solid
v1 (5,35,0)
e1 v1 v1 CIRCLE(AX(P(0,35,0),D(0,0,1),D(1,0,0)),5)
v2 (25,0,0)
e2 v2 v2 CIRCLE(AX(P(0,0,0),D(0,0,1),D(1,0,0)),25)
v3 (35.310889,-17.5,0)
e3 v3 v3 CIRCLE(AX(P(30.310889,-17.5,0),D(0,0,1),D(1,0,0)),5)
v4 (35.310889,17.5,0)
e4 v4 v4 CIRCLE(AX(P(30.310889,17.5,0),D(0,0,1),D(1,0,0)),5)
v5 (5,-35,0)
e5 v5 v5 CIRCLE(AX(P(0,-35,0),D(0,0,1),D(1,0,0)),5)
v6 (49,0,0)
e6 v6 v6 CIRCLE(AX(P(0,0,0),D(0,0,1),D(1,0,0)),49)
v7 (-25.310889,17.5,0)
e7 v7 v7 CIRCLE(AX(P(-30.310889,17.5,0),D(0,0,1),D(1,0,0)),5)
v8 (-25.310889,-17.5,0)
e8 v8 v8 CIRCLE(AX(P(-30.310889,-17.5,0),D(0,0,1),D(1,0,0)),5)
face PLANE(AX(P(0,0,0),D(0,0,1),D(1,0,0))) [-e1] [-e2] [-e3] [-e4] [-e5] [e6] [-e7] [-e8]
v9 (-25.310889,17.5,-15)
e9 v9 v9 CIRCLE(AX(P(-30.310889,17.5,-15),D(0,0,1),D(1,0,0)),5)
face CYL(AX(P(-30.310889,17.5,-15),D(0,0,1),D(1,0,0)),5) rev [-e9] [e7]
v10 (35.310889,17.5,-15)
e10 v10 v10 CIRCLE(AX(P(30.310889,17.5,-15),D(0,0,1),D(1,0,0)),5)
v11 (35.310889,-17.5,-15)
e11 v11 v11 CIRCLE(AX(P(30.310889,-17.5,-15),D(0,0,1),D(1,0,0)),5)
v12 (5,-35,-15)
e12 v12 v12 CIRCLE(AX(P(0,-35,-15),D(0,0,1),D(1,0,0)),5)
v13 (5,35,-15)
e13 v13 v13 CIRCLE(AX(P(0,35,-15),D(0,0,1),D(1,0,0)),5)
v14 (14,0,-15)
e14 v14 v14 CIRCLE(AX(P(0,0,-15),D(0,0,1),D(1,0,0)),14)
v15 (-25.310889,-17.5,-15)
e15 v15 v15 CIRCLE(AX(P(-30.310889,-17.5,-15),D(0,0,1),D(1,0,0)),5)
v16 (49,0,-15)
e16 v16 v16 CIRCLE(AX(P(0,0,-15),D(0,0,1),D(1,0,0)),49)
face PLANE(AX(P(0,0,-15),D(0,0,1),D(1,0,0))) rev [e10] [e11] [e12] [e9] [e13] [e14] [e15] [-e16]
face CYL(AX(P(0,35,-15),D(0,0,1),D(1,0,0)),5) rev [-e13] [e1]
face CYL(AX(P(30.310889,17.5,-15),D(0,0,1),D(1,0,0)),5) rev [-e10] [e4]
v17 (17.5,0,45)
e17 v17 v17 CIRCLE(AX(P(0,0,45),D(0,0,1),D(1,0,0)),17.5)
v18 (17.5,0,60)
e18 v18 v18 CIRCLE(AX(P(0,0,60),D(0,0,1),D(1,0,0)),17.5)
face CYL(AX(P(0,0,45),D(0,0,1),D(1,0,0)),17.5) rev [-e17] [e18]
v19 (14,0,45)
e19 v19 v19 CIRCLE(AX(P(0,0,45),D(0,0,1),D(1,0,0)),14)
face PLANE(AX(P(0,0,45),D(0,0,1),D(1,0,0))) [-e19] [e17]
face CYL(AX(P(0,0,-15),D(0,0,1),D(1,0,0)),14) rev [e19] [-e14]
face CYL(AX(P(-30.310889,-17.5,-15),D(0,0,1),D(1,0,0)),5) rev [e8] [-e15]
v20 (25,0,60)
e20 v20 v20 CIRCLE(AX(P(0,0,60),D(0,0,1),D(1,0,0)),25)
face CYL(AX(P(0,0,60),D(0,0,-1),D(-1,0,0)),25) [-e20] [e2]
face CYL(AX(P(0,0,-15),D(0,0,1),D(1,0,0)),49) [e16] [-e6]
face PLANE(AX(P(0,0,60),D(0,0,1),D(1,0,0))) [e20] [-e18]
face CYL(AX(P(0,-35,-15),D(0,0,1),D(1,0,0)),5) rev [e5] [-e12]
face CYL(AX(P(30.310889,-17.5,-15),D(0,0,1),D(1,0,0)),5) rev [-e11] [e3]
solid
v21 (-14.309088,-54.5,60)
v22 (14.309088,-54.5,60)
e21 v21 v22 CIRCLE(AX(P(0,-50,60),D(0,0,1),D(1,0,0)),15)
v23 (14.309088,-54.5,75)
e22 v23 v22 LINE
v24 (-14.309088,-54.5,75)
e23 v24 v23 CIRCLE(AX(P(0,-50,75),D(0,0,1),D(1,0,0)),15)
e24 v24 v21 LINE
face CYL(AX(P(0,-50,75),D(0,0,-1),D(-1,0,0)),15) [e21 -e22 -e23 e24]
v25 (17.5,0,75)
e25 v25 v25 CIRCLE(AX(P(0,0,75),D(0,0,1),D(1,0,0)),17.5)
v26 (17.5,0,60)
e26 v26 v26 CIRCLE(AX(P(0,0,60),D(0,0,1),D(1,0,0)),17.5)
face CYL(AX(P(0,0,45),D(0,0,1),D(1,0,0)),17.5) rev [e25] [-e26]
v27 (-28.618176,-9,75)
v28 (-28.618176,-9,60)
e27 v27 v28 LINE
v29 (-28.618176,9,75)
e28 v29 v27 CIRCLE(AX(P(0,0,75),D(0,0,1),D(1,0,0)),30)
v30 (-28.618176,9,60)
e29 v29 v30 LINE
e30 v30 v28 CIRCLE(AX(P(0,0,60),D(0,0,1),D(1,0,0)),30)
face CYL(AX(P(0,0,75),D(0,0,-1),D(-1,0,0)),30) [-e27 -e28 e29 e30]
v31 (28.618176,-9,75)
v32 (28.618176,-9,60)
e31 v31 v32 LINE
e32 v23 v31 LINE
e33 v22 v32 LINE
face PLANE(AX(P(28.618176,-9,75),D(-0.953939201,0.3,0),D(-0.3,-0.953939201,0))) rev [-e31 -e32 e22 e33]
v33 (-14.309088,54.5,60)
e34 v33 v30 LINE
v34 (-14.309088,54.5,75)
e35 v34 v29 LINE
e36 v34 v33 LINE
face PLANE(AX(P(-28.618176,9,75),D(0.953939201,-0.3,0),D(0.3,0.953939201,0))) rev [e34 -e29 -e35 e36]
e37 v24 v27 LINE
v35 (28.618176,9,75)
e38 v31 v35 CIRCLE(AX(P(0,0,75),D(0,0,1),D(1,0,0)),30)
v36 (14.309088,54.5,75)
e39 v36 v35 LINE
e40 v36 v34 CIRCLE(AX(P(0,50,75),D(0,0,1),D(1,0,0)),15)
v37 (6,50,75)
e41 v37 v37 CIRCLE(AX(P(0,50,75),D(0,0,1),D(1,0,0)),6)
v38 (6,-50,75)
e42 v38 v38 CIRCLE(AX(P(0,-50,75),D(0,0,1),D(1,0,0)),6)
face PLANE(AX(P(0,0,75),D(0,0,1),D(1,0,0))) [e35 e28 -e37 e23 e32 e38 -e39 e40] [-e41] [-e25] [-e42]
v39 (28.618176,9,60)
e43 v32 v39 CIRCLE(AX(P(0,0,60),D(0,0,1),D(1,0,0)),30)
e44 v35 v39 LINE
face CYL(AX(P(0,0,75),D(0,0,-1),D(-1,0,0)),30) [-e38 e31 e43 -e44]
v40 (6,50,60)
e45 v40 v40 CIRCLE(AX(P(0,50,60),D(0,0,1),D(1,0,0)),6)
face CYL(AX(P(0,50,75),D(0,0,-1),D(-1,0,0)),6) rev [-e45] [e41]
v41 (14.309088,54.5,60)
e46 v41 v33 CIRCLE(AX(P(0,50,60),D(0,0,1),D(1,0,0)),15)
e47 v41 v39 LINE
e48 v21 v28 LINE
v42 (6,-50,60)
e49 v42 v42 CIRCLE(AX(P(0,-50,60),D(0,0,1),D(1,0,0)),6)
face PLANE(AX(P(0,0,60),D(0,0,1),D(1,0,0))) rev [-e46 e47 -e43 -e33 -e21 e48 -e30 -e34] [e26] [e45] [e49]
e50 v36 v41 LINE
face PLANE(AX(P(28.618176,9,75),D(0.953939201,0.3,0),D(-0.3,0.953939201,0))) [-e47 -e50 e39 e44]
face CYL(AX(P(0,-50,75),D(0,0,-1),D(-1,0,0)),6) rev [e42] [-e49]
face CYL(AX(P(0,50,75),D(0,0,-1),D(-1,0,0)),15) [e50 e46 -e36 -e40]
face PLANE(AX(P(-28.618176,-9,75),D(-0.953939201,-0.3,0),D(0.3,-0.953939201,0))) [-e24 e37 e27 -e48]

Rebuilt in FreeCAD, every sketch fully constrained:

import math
import FreeCAD as App
import Part
import Sketcher
Q = App.Units.Quantity

doc = App.newDocument("Part")
body = doc.addObject("PartDesign::Body", "Body")

# Sketch on XY plane
sketch1 = body.newObject("Sketcher::SketchObject", "Sketch")
sketch1.AttachmentSupport = (doc.getObject("XY_Plane"), [""])
sketch1.MapMode = "FlatFace"
sketch1.addGeometry(Part.Circle(App.Vector(0, 0, 0), App.Vector(0, 0, 1), 49), False)
sketch1.addGeometry(Part.Circle(App.Vector(-30, -18, 0), App.Vector(0, 0, 1), 5), False)
sketch1.addGeometry(Part.Circle(App.Vector(0, -35, 0), App.Vector(0, 0, 1), 5), False)
sketch1.addGeometry(Part.Circle(App.Vector(30, -18, 0), App.Vector(0, 0, 1), 5), False)
sketch1.addGeometry(Part.Circle(App.Vector(-30, 18, 0), App.Vector(0, 0, 1), 5), False)
sketch1.addGeometry(Part.Circle(App.Vector(30, 18, 0), App.Vector(0, 0, 1), 5), False)
sketch1.addGeometry(Part.Circle(App.Vector(0, 35, 0), App.Vector(0, 0, 1), 5), False)
sketch1.addConstraint(Sketcher.Constraint("Coincident", 0, 3, -1, 1))
sketch1.addConstraint(Sketcher.Constraint("Equal", 1, 2))
sketch1.addConstraint(Sketcher.Constraint("Equal", 2, 3))
sketch1.addConstraint(Sketcher.Constraint("Equal", 3, 4))
sketch1.addConstraint(Sketcher.Constraint("Equal", 4, 5))
sketch1.addConstraint(Sketcher.Constraint("Equal", 5, 6))
sketch1.addConstraint(Sketcher.Constraint("Symmetric", 3, 3, 4, 3, -1, 1))
sketch1.addConstraint(Sketcher.Constraint("Symmetric", 1, 3, 5, 3, -1, 1))
sketch1.addConstraint(Sketcher.Constraint("Symmetric", 2, 3, 6, 3, -1, 1))
sketch1.addConstraint(Sketcher.Constraint("Symmetric", 1, 3, 3, 3, -2))
sketch1.addConstraint(Sketcher.Constraint("PointOnObject", 2, 3, -2))
sketch1.addConstraint(Sketcher.Constraint("Diameter", 0, Q("98 mm")))
sketch1.addConstraint(Sketcher.Constraint("Diameter", 1, Q("10 mm")))
sketch1.addConstraint(Sketcher.Constraint("DistanceY", 2, 3, -1, 1, Q("35 mm")))
sketch1.addConstraint(Sketcher.Constraint("DistanceY", 1, 3, 4, 3, Q("35 mm")))
sketch1.addConstraint(Sketcher.Constraint("DistanceX", 1, 3, -1, 1, Q("30.310889 mm")))
pad1 = body.newObject("PartDesign::Pad", "Pad")
pad1.Profile = sketch1
pad1.Length = 15
pad1.Reversed = True

# Sketch on XY plane
sketch2 = body.newObject("Sketcher::SketchObject", "Sketch001")
sketch2.AttachmentSupport = (doc.getObject("XY_Plane"), [""])
sketch2.MapMode = "FlatFace"
sketch2.addGeometry(Part.Circle(App.Vector(0, 0, 0), App.Vector(0, 0, 1), 25), False)
sketch2.addConstraint(Sketcher.Constraint("Coincident", 0, 3, -1, 1))
sketch2.addConstraint(Sketcher.Constraint("Diameter", 0, Q("50 mm")))
pad2 = body.newObject("PartDesign::Pad", "Pad001")
pad2.Profile = sketch2
pad2.Length = 60
body2 = doc.addObject("PartDesign::Body", "Body001")

# Sketch on XY plane
sketch3 = body2.newObject("Sketcher::SketchObject", "Sketch002")
sketch3.AttachmentSupport = (doc.getObject("XY_Plane001"), [""])
sketch3.MapMode = "FlatFace"
sketch3.AttachmentOffset = App.Placement(App.Vector(0, 0, 60), App.Rotation())
sketch3.addGeometry(Part.LineSegment(App.Vector(-14, 54, 0), App.Vector(-29, 9, 0)), False)
sketch3.addGeometry(Part.ArcOfCircle(Part.Circle(App.Vector(0, 0, 0), App.Vector(0, 0, 1), 30), math.radians(163), math.radians(197)), False)
sketch3.addGeometry(Part.LineSegment(App.Vector(-29, -9, 0), App.Vector(-14, -54, 0)), False)
sketch3.addGeometry(Part.ArcOfCircle(Part.Circle(App.Vector(0, -50, 0), App.Vector(0, 0, 1), 15), math.radians(-163), math.radians(-17)), False)
sketch3.addGeometry(Part.LineSegment(App.Vector(14, -54, 0), App.Vector(29, -9, 0)), False)
sketch3.addGeometry(Part.ArcOfCircle(Part.Circle(App.Vector(0, 0, 0), App.Vector(0, 0, 1), 30), math.radians(-17), math.radians(17)), False)
sketch3.addGeometry(Part.LineSegment(App.Vector(29, 9, 0), App.Vector(14, 54, 0)), False)
sketch3.addGeometry(Part.ArcOfCircle(Part.Circle(App.Vector(0, 50, 0), App.Vector(0, 0, 1), 15), math.radians(17), math.radians(163)), False)
sketch3.addGeometry(Part.Circle(App.Vector(0, 50, 0), App.Vector(0, 0, 1), 6), False)
sketch3.addGeometry(Part.Circle(App.Vector(0, -50, 0), App.Vector(0, 0, 1), 6), False)
sketch3.addConstraint(Sketcher.Constraint("Tangent", 0, 2, 1, 1))
sketch3.addConstraint(Sketcher.Constraint("Tangent", 1, 2, 2, 1))
sketch3.addConstraint(Sketcher.Constraint("Tangent", 2, 2, 3, 1))
sketch3.addConstraint(Sketcher.Constraint("Tangent", 3, 2, 4, 1))
sketch3.addConstraint(Sketcher.Constraint("Tangent", 4, 2, 5, 1))
sketch3.addConstraint(Sketcher.Constraint("Tangent", 5, 2, 6, 1))
sketch3.addConstraint(Sketcher.Constraint("Tangent", 6, 2, 7, 1))
sketch3.addConstraint(Sketcher.Constraint("Tangent", 7, 2, 0, 1))
sketch3.addConstraint(Sketcher.Constraint("Coincident", 1, 3, -1, 1))
sketch3.addConstraint(Sketcher.Constraint("Coincident", 5, 3, -1, 1))
sketch3.addConstraint(Sketcher.Constraint("Coincident", 8, 3, 7, 3))
sketch3.addConstraint(Sketcher.Constraint("Coincident", 9, 3, 3, 3))
sketch3.addConstraint(Sketcher.Constraint("Equal", 1, 5))
sketch3.addConstraint(Sketcher.Constraint("Equal", 3, 7))
sketch3.addConstraint(Sketcher.Constraint("Equal", 8, 9))
sketch3.addConstraint(Sketcher.Constraint("Symmetric", 3, 3, 7, 3, -1, 1))
sketch3.addConstraint(Sketcher.Constraint("PointOnObject", 3, 3, -2))
sketch3.addConstraint(Sketcher.Constraint("Diameter", 8, Q("12 mm")))
sketch3.addConstraint(Sketcher.Constraint("Radius", 1, Q("30 mm")))
sketch3.addConstraint(Sketcher.Constraint("Radius", 3, Q("15 mm")))
sketch3.addConstraint(Sketcher.Constraint("DistanceY", 3, 3, -1, 1, Q("50 mm")))
pad3 = body2.newObject("PartDesign::Pad", "Pad002")
pad3.Profile = sketch3
pad3.Length = 15
body3 = doc.addObject("PartDesign::Body", "Body002")

# Sketch on XY plane
sketch4 = body3.newObject("Sketcher::SketchObject", "Sketch003")
sketch4.AttachmentSupport = (doc.getObject("XY_Plane002"), [""])
sketch4.MapMode = "FlatFace"
sketch4.AttachmentOffset = App.Placement(App.Vector(0, 0, 75), App.Rotation())
sketch4.addGeometry(Part.Circle(App.Vector(0, 0, 0), App.Vector(0, 0, 1), 18), False)
sketch4.addConstraint(Sketcher.Constraint("Coincident", 0, 3, -1, 1))
sketch4.addConstraint(Sketcher.Constraint("Diameter", 0, Q("35 mm")))
pad4 = body3.newObject("PartDesign::Pad", "Pad003")
pad4.Profile = sketch4
pad4.Length = 30
pad4.Reversed = True
doc.recompute()

body4 = doc.addObject("PartDesign::Body", "Body003")
body4.BaseFeature = body3
boolean = body.newObject("PartDesign::Boolean", "Boolean")
boolean.Type = "Cut"
boolean.addObjects([body4])
doc.recompute()

# Sketch on XY plane
sketch5 = body.newObject("Sketcher::SketchObject", "Sketch004")
sketch5.AttachmentSupport = (doc.getObject("XY_Plane"), [""])
sketch5.MapMode = "FlatFace"
sketch5.AttachmentOffset = App.Placement(App.Vector(0, 0, 45), App.Rotation())
sketch5.addGeometry(Part.Circle(App.Vector(0, 0, 0), App.Vector(0, 0, 1), 14), False)
sketch5.addConstraint(Sketcher.Constraint("Coincident", 0, 3, -1, 1))
sketch5.addConstraint(Sketcher.Constraint("Diameter", 0, Q("28 mm")))
pocket1 = body.newObject("PartDesign::Pocket", "Pocket")
pocket1.Profile = sketch5
pocket1.Type = "ThroughAll"
doc.recompute()

boolean2 = body2.newObject("PartDesign::Boolean", "Boolean001")
boolean2.Type = "Cut"
boolean2.addObjects([body3])

doc.recompute()
